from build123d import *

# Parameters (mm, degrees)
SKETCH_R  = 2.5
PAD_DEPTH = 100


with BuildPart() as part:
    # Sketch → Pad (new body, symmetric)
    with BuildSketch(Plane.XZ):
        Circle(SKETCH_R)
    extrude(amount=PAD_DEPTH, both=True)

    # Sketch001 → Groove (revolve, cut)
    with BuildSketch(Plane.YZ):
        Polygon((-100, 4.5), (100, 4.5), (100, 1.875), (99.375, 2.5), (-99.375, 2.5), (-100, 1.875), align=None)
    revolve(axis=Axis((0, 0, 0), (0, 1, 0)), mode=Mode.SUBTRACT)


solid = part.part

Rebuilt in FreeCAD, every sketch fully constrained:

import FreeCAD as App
import Part
import Sketcher

V = App.Vector
Q = App.Units.Quantity


def add_polygon(sketch, points):
    """Adds a closed chain of lines whose ends are joined by coincident constraints."""
    first, n = sketch.GeometryCount, len(points)
    for a, b in zip(points, points[1:] + points[:1]):
        sketch.addGeometry(Part.LineSegment(App.Vector(*a, 0), App.Vector(*b, 0)), False)
    for i in range(n):
        sketch.addConstraint(Sketcher.Constraint("Coincident", first + i, 2, first + (i + 1) % n, 1))

doc = App.newDocument("Part")
body = doc.addObject("PartDesign::Body", "Body")

# Sketch on XZ plane
sketch1 = doc.addObject("Sketcher::SketchObject", "Sketch")
body.addObject(sketch1)
sketch1.AttachmentSupport = (doc.XZ_Plane, [""])
sketch1.MapMode = "FlatFace"
sketch1.addGeometry(Part.Circle(V(0, 0, 0), V(0, 0, 1), 2.5), False)
sketch1.addConstraint(Sketcher.Constraint("Coincident", 0, 3, -1, 1))
sketch1.addConstraint(Sketcher.Constraint("Diameter", 0, Q("5 mm")))
pad1 = doc.addObject("PartDesign::Pad", "Pad")
body.addObject(pad1)
pad1.Profile = sketch1
pad1.Length = 200
pad1.Midplane = True

# Sketch on YZ plane
sketch2 = doc.addObject("Sketcher::SketchObject", "Sketch001")
body.addObject(sketch2)
sketch2.AttachmentSupport = (doc.YZ_Plane, [""])
sketch2.MapMode = "FlatFace"
add_polygon(sketch2, [(100, 4.5), (-100, 4.5), (-100, 1.875), (-99.375, 2.5), (99.375, 2.5), (100, 1.875)])  # lines 0-5
sketch2.addConstraint(Sketcher.Constraint("Horizontal", 0))
sketch2.addConstraint(Sketcher.Constraint("Vertical", 1))
sketch2.addConstraint(Sketcher.Constraint("Horizontal", 3))
sketch2.addConstraint(Sketcher.Constraint("Vertical", 5))
sketch2.addConstraint(Sketcher.Constraint("Symmetric", 1, 2, 4, 2, -2))
sketch2.addConstraint(Sketcher.Constraint("Perpendicular", 2, 4))
sketch2.addConstraint(Sketcher.Constraint("Equal", 2, 4))
sketch2.addConstraint(Sketcher.Constraint("DistanceX", 0, 2, 0, 1, Q("200 mm")))
sketch2.addConstraint(Sketcher.Constraint("DistanceY", 2, 2, 0, 2, Q("2 mm")))
sketch2.addConstraint(Sketcher.Constraint("DistanceX", 3, 1, 3, 2, Q("198.75 mm")))
sketch2.addConstraint(Sketcher.Constraint("DistanceY", -1, 1, 0, 2, Q("4.5 mm")))
groove = doc.addObject("PartDesign::Groove", "Groove")
body.addObject(groove)
groove.Profile = sketch2
groove.ReferenceAxis = (sketch2, ["H_Axis"])
groove.Angle = 360

doc.recompute()
